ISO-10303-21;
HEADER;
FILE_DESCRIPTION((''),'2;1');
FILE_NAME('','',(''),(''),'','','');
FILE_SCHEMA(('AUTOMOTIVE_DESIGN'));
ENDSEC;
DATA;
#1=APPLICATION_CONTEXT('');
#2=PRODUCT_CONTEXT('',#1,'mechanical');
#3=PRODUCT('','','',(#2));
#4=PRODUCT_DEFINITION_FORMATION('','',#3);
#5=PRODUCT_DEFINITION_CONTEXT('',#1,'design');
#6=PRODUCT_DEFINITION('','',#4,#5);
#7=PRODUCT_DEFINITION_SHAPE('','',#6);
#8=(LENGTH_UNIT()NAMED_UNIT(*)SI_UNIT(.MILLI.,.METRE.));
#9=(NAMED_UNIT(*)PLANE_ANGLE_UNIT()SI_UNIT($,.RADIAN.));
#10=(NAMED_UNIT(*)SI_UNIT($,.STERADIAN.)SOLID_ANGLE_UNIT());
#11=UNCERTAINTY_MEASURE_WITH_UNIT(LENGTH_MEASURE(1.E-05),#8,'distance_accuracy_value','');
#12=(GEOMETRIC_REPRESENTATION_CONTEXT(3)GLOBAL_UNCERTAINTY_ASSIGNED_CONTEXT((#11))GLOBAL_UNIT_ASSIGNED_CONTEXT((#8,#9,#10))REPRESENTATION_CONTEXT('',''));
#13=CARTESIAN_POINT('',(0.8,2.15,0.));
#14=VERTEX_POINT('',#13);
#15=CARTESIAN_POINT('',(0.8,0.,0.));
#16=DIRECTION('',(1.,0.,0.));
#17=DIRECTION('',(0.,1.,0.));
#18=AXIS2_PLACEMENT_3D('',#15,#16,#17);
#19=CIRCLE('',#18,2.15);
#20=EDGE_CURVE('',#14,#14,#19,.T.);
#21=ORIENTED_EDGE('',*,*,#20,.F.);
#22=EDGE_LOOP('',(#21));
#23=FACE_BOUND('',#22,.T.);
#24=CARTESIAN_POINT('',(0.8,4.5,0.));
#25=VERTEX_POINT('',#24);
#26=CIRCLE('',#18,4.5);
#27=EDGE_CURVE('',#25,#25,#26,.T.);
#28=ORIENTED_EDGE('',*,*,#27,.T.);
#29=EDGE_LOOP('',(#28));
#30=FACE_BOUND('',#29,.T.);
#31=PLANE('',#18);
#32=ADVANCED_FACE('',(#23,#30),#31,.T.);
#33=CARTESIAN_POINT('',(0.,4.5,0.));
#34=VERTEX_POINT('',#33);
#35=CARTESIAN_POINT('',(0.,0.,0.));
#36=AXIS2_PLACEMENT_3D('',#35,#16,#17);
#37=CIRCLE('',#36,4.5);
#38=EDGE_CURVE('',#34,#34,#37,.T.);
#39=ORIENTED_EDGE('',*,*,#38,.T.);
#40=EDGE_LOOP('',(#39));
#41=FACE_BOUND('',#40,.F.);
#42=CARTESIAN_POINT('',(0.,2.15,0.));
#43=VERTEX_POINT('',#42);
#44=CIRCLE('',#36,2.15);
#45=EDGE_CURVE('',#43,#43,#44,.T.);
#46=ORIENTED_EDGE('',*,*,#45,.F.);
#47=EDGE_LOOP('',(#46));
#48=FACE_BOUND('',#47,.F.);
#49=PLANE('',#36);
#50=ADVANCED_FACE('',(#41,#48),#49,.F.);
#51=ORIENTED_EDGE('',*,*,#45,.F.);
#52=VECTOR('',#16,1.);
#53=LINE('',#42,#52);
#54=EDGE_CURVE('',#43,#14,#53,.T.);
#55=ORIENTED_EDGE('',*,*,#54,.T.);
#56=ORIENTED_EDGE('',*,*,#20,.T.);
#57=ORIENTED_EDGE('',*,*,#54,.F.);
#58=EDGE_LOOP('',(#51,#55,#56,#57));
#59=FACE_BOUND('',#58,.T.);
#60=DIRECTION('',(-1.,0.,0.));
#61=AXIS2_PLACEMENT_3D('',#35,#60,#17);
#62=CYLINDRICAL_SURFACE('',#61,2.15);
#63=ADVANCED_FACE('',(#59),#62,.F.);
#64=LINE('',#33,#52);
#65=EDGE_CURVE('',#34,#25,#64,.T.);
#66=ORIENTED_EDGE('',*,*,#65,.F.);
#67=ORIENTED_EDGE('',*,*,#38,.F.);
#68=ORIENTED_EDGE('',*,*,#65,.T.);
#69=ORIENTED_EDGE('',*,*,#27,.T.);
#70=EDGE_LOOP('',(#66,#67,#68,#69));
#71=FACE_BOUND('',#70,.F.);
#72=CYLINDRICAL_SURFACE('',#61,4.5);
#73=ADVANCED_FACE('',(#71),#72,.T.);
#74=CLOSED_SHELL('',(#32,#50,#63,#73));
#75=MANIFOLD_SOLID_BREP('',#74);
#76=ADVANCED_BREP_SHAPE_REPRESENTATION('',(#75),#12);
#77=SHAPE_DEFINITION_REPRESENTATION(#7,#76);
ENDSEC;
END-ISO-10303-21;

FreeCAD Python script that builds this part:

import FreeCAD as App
import Part
import Sketcher
from FreeCAD import Vector
Q = App.Units.Quantity

doc = App.newDocument("Part")
params = doc.addObject("Spreadsheet::Sheet", "Params")
for row, (alias, value) in enumerate([
    ("sketch1_diameter", "9 mm"),
    ("sketch1_diameter2", "4.3 mm"),
    ("pad1_length", "0.8 mm"),
], start=1):
    params.set(f"A{row}", alias)
    params.set(f"B{row}", "=" + value)
    params.setAlias(f"B{row}", alias)

body = doc.addObject("PartDesign::Body", "Body")

sketch1 = body.newObject("Sketcher::SketchObject", "Sketch")
sketch1.AttachmentSupport = (doc.getObject("YZ_Plane"), [""])
sketch1.MapMode = "FlatFace"
sketch1.addGeometry([
    Part.Circle(Vector(0, 0, 0), Vector(0, 0, 1), 4.5),
    Part.Circle(Vector(0, 0, 0), Vector(0, 0, 1), 2.1),
], False)
sketch1.addConstraint([
    Sketcher.Constraint("Coincident", 0, 3, -1, 1),
    Sketcher.Constraint("Coincident", 1, 3, -1, 1),
    Sketcher.Constraint("Diameter", 0, Q("9 mm")),
    Sketcher.Constraint("Diameter", 1, Q("4.3 mm")),
])
sketch1.setExpression("Constraints[2]", "Params.sketch1_diameter")
sketch1.setExpression("Constraints[3]", "Params.sketch1_diameter2")
pad1 = body.newObject("PartDesign::Pad", "Pad")
pad1.Profile = sketch1
pad1.setExpression("Length", "Params.pad1_length")

doc.recompute()
